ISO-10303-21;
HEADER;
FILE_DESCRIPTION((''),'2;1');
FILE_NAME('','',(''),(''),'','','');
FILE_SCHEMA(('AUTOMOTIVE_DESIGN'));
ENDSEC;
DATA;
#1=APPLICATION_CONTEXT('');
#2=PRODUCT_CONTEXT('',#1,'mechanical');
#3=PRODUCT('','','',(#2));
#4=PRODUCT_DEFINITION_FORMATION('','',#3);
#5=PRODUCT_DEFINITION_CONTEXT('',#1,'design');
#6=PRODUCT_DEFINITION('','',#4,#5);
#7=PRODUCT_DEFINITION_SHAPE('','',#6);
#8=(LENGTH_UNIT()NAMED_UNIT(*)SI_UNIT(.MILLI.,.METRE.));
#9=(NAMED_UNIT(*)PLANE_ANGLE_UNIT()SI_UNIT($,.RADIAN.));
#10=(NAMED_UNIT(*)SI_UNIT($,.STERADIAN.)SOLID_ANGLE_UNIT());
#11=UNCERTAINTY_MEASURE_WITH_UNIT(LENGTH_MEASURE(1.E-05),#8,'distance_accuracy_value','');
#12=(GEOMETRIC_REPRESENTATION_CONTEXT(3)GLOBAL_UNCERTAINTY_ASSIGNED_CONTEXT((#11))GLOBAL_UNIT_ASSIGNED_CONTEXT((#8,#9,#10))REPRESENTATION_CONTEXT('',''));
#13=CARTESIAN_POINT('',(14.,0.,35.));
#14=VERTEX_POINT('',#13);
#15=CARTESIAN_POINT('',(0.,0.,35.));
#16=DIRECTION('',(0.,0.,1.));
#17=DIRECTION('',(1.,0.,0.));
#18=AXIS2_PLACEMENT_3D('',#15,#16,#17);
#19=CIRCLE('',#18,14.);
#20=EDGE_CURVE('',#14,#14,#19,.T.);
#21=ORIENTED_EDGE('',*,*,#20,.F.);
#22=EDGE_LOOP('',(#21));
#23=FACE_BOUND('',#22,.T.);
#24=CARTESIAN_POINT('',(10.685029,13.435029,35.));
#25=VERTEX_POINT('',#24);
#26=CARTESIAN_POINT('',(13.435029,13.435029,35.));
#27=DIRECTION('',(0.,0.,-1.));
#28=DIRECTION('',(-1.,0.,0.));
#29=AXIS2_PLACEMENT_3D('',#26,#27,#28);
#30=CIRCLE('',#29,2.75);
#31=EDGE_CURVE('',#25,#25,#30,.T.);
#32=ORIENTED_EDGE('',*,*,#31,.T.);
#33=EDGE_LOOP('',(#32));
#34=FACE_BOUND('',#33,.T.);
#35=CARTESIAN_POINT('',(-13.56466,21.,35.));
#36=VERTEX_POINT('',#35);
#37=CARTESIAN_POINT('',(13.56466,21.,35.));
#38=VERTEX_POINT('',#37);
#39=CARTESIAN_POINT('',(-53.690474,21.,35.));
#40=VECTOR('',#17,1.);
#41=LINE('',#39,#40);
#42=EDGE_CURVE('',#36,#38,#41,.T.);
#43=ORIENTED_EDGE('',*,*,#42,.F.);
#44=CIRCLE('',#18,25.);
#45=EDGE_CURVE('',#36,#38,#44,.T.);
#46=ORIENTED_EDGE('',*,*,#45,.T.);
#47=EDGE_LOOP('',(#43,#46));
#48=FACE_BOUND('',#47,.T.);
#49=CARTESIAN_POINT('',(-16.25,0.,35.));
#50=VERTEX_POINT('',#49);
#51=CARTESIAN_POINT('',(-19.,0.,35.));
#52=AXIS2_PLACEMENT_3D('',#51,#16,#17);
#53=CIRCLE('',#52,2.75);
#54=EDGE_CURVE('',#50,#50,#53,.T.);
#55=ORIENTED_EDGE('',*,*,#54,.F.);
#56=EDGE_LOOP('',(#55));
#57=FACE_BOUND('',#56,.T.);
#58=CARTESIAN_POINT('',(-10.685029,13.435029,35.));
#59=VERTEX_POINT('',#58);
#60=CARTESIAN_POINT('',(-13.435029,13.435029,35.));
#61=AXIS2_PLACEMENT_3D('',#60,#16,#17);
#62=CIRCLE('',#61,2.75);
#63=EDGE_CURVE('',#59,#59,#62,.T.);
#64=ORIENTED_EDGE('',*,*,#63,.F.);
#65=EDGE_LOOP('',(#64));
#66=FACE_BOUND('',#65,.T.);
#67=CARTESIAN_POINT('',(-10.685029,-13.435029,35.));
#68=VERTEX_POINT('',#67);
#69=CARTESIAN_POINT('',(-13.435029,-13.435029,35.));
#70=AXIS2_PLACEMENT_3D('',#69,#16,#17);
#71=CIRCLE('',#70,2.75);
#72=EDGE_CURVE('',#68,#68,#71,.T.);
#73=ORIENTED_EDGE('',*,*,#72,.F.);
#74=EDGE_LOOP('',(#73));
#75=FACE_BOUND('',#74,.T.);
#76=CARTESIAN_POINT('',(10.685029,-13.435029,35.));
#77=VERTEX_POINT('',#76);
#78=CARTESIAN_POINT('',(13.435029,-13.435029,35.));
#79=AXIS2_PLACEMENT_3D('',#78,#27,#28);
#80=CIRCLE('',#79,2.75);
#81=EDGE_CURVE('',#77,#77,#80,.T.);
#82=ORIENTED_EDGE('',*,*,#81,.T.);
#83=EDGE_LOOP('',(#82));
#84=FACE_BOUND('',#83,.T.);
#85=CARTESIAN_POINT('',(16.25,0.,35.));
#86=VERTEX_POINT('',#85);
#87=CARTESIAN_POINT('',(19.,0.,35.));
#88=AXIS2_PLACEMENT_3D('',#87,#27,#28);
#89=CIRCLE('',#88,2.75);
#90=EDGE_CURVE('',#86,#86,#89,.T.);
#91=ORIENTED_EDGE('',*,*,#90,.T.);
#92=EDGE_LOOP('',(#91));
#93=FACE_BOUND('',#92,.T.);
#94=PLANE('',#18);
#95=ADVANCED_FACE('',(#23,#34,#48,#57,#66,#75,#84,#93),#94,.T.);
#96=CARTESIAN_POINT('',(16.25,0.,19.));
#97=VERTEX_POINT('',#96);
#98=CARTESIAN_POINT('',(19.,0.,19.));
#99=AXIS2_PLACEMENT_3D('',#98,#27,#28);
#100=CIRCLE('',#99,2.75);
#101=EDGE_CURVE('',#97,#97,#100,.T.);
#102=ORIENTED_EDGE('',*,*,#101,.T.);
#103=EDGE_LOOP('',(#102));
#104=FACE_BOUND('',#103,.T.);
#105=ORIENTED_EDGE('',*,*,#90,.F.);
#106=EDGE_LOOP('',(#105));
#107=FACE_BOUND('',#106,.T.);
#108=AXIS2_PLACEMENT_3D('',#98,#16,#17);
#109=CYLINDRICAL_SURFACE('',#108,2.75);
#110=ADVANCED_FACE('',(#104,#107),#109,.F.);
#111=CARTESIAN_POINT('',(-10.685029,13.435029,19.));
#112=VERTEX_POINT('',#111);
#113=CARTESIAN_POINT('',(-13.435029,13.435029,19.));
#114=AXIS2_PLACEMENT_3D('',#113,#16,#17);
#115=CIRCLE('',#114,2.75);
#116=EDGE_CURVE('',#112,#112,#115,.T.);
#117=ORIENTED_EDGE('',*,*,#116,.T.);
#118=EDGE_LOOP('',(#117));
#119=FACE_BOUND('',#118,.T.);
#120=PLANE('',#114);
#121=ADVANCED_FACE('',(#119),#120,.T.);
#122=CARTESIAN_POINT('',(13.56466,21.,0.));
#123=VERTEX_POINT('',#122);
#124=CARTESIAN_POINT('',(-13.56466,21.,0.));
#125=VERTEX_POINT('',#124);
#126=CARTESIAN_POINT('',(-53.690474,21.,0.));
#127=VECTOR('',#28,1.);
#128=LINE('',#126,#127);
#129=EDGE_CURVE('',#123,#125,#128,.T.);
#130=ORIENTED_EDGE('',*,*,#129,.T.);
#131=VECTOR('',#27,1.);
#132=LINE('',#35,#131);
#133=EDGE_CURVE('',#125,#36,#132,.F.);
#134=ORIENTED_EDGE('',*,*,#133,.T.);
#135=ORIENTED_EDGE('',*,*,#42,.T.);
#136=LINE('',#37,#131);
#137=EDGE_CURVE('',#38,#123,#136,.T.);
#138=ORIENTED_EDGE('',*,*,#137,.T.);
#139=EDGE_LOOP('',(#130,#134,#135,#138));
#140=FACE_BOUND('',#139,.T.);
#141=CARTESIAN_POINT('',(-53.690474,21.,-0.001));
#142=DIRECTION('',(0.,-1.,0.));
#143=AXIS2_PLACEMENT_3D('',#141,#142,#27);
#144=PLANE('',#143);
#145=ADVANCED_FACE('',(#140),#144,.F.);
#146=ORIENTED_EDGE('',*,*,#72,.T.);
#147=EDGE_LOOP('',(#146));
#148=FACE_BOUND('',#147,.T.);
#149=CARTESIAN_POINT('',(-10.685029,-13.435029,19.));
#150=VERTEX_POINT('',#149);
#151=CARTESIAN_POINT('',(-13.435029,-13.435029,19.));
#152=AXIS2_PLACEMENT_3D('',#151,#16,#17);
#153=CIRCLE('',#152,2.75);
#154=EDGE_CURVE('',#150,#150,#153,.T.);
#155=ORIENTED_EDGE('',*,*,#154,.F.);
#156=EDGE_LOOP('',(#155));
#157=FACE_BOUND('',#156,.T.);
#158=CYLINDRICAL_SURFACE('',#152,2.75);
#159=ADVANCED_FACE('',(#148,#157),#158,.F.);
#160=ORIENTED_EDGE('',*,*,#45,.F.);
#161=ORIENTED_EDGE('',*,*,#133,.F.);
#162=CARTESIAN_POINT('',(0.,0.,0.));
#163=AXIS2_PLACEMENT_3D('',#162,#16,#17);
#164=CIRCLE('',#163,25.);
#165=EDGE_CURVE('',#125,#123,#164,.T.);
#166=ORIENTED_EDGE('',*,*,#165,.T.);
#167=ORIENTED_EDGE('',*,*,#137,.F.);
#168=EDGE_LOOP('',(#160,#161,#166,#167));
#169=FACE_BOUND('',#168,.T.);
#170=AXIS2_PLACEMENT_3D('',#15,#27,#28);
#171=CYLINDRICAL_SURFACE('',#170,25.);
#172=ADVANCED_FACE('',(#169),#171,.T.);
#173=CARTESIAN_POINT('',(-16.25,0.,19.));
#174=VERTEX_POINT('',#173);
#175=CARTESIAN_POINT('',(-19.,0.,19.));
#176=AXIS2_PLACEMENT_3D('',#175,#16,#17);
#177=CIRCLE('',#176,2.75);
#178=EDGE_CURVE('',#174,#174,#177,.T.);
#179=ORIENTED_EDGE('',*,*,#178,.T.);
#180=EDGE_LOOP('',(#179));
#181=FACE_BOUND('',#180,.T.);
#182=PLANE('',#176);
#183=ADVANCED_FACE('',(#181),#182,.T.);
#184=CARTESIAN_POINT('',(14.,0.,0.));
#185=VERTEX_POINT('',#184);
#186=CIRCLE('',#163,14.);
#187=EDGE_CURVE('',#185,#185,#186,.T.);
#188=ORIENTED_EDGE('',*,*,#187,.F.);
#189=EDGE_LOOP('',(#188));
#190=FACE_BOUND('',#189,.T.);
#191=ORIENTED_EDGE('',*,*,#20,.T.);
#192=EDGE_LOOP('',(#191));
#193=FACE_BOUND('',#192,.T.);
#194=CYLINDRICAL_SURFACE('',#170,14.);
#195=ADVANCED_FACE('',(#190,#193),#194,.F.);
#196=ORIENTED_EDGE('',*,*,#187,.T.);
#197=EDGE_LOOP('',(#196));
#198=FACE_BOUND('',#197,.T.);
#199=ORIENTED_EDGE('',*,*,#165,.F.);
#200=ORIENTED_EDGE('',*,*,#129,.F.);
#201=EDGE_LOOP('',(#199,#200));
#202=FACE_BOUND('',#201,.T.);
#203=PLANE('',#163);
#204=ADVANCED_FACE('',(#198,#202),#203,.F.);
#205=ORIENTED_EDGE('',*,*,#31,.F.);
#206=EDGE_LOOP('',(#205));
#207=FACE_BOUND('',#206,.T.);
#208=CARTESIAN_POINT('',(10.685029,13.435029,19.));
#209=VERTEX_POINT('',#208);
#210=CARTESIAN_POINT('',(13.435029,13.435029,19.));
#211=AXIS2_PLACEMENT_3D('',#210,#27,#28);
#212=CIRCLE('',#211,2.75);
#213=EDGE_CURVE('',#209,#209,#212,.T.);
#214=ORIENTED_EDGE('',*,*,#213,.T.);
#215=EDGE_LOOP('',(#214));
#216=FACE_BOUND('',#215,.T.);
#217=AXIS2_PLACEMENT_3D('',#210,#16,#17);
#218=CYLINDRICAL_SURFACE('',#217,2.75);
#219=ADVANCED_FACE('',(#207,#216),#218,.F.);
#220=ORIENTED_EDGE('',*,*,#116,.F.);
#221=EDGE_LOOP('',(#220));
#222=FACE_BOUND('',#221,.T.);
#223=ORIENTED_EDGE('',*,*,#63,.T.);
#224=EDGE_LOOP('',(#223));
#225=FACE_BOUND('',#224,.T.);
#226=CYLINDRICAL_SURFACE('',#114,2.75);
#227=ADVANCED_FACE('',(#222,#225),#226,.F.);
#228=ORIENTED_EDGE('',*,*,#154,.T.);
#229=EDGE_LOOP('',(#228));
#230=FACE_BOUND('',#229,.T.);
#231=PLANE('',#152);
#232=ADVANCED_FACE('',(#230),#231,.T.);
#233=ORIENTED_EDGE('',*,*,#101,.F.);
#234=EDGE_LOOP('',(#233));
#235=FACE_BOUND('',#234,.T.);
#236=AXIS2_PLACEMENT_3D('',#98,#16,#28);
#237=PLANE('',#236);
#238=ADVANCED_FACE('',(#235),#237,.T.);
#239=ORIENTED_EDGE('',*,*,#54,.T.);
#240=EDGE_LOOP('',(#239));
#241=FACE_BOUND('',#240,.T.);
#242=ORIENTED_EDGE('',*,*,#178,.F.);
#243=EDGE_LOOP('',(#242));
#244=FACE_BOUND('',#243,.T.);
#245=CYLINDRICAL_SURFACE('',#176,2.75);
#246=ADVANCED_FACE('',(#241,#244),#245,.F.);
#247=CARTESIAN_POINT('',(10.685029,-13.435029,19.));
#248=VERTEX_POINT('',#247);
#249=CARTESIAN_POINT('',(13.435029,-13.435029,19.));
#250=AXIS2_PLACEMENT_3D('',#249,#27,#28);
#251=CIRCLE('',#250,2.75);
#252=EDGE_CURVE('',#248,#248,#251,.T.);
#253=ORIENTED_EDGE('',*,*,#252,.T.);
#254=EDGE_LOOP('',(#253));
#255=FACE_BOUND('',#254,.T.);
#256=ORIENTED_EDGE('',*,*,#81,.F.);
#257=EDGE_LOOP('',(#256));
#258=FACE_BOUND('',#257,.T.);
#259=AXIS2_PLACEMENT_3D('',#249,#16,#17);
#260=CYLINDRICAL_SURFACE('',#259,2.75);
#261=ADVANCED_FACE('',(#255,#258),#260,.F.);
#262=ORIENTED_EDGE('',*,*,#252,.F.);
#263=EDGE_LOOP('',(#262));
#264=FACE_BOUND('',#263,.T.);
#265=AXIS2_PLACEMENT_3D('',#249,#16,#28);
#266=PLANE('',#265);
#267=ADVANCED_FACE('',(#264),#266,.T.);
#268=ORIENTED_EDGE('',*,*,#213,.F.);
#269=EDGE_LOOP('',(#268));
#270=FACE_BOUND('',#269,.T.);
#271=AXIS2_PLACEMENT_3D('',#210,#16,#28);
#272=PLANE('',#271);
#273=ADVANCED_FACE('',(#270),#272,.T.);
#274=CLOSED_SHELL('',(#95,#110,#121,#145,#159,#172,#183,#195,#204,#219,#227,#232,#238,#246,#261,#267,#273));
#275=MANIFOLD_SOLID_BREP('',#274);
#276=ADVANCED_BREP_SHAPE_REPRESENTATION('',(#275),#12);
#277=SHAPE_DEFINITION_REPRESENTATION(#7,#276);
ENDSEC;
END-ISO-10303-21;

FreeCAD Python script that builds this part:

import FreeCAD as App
import Part
import Sketcher
from FreeCAD import Vector
Q = App.Units.Quantity


def add_polygon(sketch, points):
    """Adds a closed chain of lines whose ends are joined by coincident constraints."""
    first, n = sketch.GeometryCount, len(points)
    for a, b in zip(points, points[1:] + points[:1]):
        sketch.addGeometry(Part.LineSegment(App.Vector(*a, 0), App.Vector(*b, 0)), False)
    for i in range(n):
        sketch.addConstraint(Sketcher.Constraint("Coincident", first + i, 2, first + (i + 1) % n, 1))

doc = App.newDocument("Part")
body = doc.addObject("PartDesign::Body", "Body")

# Sketch on XY plane
sketch1 = body.newObject("Sketcher::SketchObject", "Sketch")
sketch1.AttachmentSupport = (doc.getObject("XY_Plane"), [""])
sketch1.MapMode = "FlatFace"
sketch1.addGeometry([
    Part.Circle(Vector(0, 0, 0), Vector(0, 0, 1), 25),
    Part.Circle(Vector(0, 0, 0), Vector(0, 0, 1), 14),
], False)
sketch1.addConstraint([
    Sketcher.Constraint("Coincident", 0, 3, -1, 1),
    Sketcher.Constraint("Coincident", 1, 3, -1, 1),
    Sketcher.Constraint("Diameter", 0, Q("50 mm")),
    Sketcher.Constraint("Diameter", 1, Q("28 mm")),
])
pad1 = body.newObject("PartDesign::Pad", "Pad")
pad1.Profile = sketch1
pad1.Length = 35

# Sketch on XY plane
sketch2 = body.newObject("Sketcher::SketchObject", "Sketch001")
sketch2.AttachmentSupport = (doc.getObject("XY_Plane"), [""])
sketch2.MapMode = "FlatFace"
sketch2.AttachmentOffset = App.Placement(Vector(0, 0, 35), App.Rotation())
add_polygon(sketch2, [(-53.690474, 36.412231), (-53.690474, 21), (45.912549, 21), (45.912549, 36.412231)])  # lines 0-3
sketch2.addConstraint([
    Sketcher.Constraint("Vertical", 0),
    Sketcher.Constraint("Horizontal", 1),
    Sketcher.Constraint("Vertical", 2),
    Sketcher.Constraint("Horizontal", 3),
    Sketcher.Constraint("DistanceY", -1, 1, 0, 2, Q("21 mm")),
    Sketcher.Constraint("DistanceY", 0, 2, 0, 1, Q("15.412231 mm")),
    Sketcher.Constraint("DistanceX", 1, 1, 1, 2, Q("99.603023 mm")),
    Sketcher.Constraint("DistanceX", -1, 1, 1, 2, Q("45.912549 mm")),
])
pocket1 = body.newObject("PartDesign::Pocket", "Pocket")
pocket1.Profile = sketch2
pocket1.Length = 35

# Sketch on XY plane
sketch3 = body.newObject("Sketcher::SketchObject", "Sketch002")
sketch3.AttachmentSupport = (doc.getObject("XY_Plane"), [""])
sketch3.MapMode = "FlatFace"
sketch3.AttachmentOffset = App.Placement(Vector(0, 0, 35), App.Rotation())
sketch3.addGeometry([
    Part.Circle(Vector(-13.435029, 13.435029, 0), Vector(0, 0, 1), 2.75),
    Part.Circle(Vector(-19, 0, 0), Vector(0, 0, 1), 2.75),
    Part.Circle(Vector(-13.435029, -13.435029, 0), Vector(0, 0, 1), 2.75),
], False)
sketch3.addConstraint([
    Sketcher.Constraint("Equal", 0, 1),
    Sketcher.Constraint("Equal", 1, 2),
    Sketcher.Constraint("Symmetric", 0, 3, 2, 3, -1),
    Sketcher.Constraint("PointOnObject", 1, 3, -1),
    Sketcher.Constraint("Diameter", 0, Q("5.5 mm")),
    Sketcher.Constraint("DistanceX", 1, 3, -1, 1, Q("19 mm")),
    Sketcher.Constraint("DistanceX", 0, 3, -1, 1, Q("13.435029 mm")),
    Sketcher.Constraint("DistanceY", -1, 1, 0, 3, Q("13.435029 mm")),
])
pocket2 = body.newObject("PartDesign::Pocket", "Pocket001")
pocket2.Profile = sketch3
pocket2.Length = 16
doc.recompute()

mirrored = body.newObject("PartDesign::Mirrored", "Mirrored")
mirrored.Originals = [pocket2]
mirrored.MirrorPlane = (doc.getObject("YZ_Plane"), [""])
body.Tip = mirrored

doc.recompute()
